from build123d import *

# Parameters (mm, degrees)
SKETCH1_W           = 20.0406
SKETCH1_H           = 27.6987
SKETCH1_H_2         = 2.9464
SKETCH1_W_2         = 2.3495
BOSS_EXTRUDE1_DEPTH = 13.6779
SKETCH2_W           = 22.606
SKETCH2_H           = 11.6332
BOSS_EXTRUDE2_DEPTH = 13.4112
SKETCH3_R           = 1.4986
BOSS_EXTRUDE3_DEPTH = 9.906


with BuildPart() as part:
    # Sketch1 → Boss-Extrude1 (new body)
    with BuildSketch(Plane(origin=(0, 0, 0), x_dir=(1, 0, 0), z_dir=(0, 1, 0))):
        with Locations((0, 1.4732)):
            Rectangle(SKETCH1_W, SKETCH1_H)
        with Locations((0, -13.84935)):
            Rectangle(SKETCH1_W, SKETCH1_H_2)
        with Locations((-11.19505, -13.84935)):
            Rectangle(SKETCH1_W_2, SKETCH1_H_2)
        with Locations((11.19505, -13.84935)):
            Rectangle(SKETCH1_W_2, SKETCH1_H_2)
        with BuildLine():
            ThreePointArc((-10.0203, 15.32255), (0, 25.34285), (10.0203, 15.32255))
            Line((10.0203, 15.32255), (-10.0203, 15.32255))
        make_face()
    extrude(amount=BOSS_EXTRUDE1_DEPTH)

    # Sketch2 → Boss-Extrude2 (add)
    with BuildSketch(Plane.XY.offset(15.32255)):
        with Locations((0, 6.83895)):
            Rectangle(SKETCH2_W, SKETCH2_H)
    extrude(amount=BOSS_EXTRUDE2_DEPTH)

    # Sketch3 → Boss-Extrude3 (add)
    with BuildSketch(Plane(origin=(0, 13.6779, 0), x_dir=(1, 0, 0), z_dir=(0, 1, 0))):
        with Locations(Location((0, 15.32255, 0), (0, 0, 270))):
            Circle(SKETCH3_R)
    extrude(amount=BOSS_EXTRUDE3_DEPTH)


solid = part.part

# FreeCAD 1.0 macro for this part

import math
import FreeCAD as App
import Part
import Sketcher

V = App.Vector
Q = App.Units.Quantity


def add_polygon(sketch, points):
    """Adds a closed chain of lines whose ends are joined by coincident constraints."""
    first, n = sketch.GeometryCount, len(points)
    for a, b in zip(points, points[1:] + points[:1]):
        sketch.addGeometry(Part.LineSegment(App.Vector(*a, 0), App.Vector(*b, 0)), False)
    for i in range(n):
        sketch.addConstraint(Sketcher.Constraint("Coincident", first + i, 2, first + (i + 1) % n, 1))

doc = App.newDocument("Part")
params = doc.addObject("Spreadsheet::Sheet", "Params")
for row, (alias, value) in enumerate([
    ("sketch1_width", "0.974 in"),
    ("sketch1_height", "0.116 in"),
    ("pad1_length", "0.5385 in"),
    ("sketch2_width", "0.89 in"),
    ("sketch2_height", "0.458 in"),
    ("pad2_length", "0.528 in"),
    ("sketch3_diameter", "0.118 in"),
    ("pad3_length", "0.39 in"),
], start=1):
    params.set(f"A{row}", alias)
    params.set(f"B{row}", "=" + value)
    params.setAlias(f"B{row}", alias)

body = doc.addObject("PartDesign::Body", "Body")

# Sketch on XZ plane
sketch1 = body.newObject("Sketcher::SketchObject", "Sketch")
sketch1.AttachmentSupport = (doc.getObject("XZ_Plane"), [""])
sketch1.MapMode = "FlatFace"
sketch1.addGeometry(Part.LineSegment(V(-10.0203, -15.32255, 0), V(-10.0203, 12.37615, 0)), False)
sketch1.addGeometry(Part.LineSegment(V(-10.0203, 12.37615, 0), V(-12.3698, 12.37615, 0)), False)
sketch1.addGeometry(Part.LineSegment(V(-12.3698, 12.37615, 0), V(-12.3698, 15.32255, 0)), False)
sketch1.addGeometry(Part.LineSegment(V(-12.3698, 15.32255, 0), V(12.3698, 15.32255, 0)), False)
sketch1.addGeometry(Part.LineSegment(V(12.3698, 15.32255, 0), V(12.3698, 12.37615, 0)), False)
sketch1.addGeometry(Part.LineSegment(V(12.3698, 12.37615, 0), V(10.0203, 12.37615, 0)), False)
sketch1.addGeometry(Part.LineSegment(V(10.0203, 12.37615, 0), V(10.0203, -15.32255, 0)), False)
sketch1.addGeometry(Part.ArcOfCircle(Part.Circle(V(0, -15.32255, 0), V(0, 0, 1), 10.0203), math.radians(180), math.radians(360)), False)
sketch1.addConstraint(Sketcher.Constraint("Coincident", 0, 2, 1, 1))
sketch1.addConstraint(Sketcher.Constraint("Coincident", 1, 2, 2, 1))
sketch1.addConstraint(Sketcher.Constraint("Coincident", 2, 2, 3, 1))
sketch1.addConstraint(Sketcher.Constraint("Coincident", 3, 2, 4, 1))
sketch1.addConstraint(Sketcher.Constraint("Coincident", 4, 2, 5, 1))
sketch1.addConstraint(Sketcher.Constraint("Coincident", 5, 2, 6, 1))
sketch1.addConstraint(Sketcher.Constraint("Tangent", 6, 2, 7, 2))
sketch1.addConstraint(Sketcher.Constraint("Tangent", 7, 1, 0, 1))
sketch1.addConstraint(Sketcher.Constraint("Vertical", 0))
sketch1.addConstraint(Sketcher.Constraint("Horizontal", 1))
sketch1.addConstraint(Sketcher.Constraint("Vertical", 2))
sketch1.addConstraint(Sketcher.Constraint("Horizontal", 3))
sketch1.addConstraint(Sketcher.Constraint("Vertical", 4))
sketch1.addConstraint(Sketcher.Constraint("Horizontal", 5))
sketch1.addConstraint(Sketcher.Constraint("Vertical", 6))
sketch1.addConstraint(Sketcher.Constraint("Symmetric", 1, 2, 4, 2, -2))
sketch1.addConstraint(Sketcher.Constraint("PointOnObject", 7, 3, -2))
sketch1.addConstraint(Sketcher.Constraint("Radius", 7, Q("0.3945 in")))
sketch1.addConstraint(Sketcher.Constraint("DistanceX", 3, 1, 3, 2, Q("0.974 in")))
sketch1.addConstraint(Sketcher.Constraint("DistanceY", 2, 1, 2, 2, Q("0.116 in")))
sketch1.addConstraint(Sketcher.Constraint("DistanceY", 0, 1, 0, 2, Q("1.0905 in")))
sketch1.addConstraint(Sketcher.Constraint("DistanceY", 7, 3, -1, 1, 15.32255))
sketch1.setExpression("Constraints[18]", "Params.sketch1_width")
sketch1.setExpression("Constraints[19]", "Params.sketch1_height")
pad1 = body.newObject("PartDesign::Pad", "Pad")
pad1.Profile = sketch1
pad1.setExpression("Length", "Params.pad1_length")
pad1.Reversed = True

# Sketch on XY plane
sketch2 = body.newObject("Sketcher::SketchObject", "Sketch001")
sketch2.AttachmentSupport = (doc.getObject("XY_Plane"), [""])
sketch2.MapMode = "FlatFace"
sketch2.AttachmentOffset = App.Placement(V(0, 0, 15.32255), App.Rotation())
add_polygon(sketch2, [(-11.303, 12.65555), (-11.303, 1.02235), (11.303, 1.02235), (11.303, 12.65555)])  # lines 0-3
sketch2.addConstraint(Sketcher.Constraint("Vertical", 0))
sketch2.addConstraint(Sketcher.Constraint("Horizontal", 1))
sketch2.addConstraint(Sketcher.Constraint("Vertical", 2))
sketch2.addConstraint(Sketcher.Constraint("Horizontal", 3))
sketch2.addConstraint(Sketcher.Constraint("DistanceX", 1, 1, 1, 2, Q("0.89 in")))
sketch2.addConstraint(Sketcher.Constraint("DistanceY", 0, 2, 0, 1, Q("0.458 in")))
sketch2.addConstraint(Sketcher.Constraint("DistanceX", 0, 2, -1, 1, Q("0.445 in")))
sketch2.addConstraint(Sketcher.Constraint("DistanceY", -1, 1, 0, 2, 1.02235))
sketch2.setExpression("Constraints[8]", "Params.sketch2_width")
sketch2.setExpression("Constraints[9]", "Params.sketch2_height")
pad2 = body.newObject("PartDesign::Pad", "Pad001")
pad2.Profile = sketch2
pad2.setExpression("Length", "Params.pad2_length")

# Sketch on XZ plane
sketch3 = body.newObject("Sketcher::SketchObject", "Sketch002")
sketch3.AttachmentSupport = (doc.getObject("XZ_Plane"), [""])
sketch3.MapMode = "FlatFace"
sketch3.AttachmentOffset = App.Placement(V(0, 0, -0.5385 * 25.4), App.Rotation())
sketch3.addGeometry(Part.Circle(V(0, -15.32255, 0), V(0, 0, 1), 1.4986), False)
sketch3.addConstraint(Sketcher.Constraint("PointOnObject", 0, 3, -2))
sketch3.addConstraint(Sketcher.Constraint("Diameter", 0, Q("0.118 in")))
sketch3.addConstraint(Sketcher.Constraint("DistanceY", 0, 3, -1, 1, 15.32255))
sketch3.setExpression("Constraints[1]", "Params.sketch3_diameter")
pad3 = body.newObject("PartDesign::Pad", "Pad002")
pad3.Profile = sketch3
pad3.setExpression("Length", "Params.pad3_length")
pad3.Reversed = True

doc.recompute()
